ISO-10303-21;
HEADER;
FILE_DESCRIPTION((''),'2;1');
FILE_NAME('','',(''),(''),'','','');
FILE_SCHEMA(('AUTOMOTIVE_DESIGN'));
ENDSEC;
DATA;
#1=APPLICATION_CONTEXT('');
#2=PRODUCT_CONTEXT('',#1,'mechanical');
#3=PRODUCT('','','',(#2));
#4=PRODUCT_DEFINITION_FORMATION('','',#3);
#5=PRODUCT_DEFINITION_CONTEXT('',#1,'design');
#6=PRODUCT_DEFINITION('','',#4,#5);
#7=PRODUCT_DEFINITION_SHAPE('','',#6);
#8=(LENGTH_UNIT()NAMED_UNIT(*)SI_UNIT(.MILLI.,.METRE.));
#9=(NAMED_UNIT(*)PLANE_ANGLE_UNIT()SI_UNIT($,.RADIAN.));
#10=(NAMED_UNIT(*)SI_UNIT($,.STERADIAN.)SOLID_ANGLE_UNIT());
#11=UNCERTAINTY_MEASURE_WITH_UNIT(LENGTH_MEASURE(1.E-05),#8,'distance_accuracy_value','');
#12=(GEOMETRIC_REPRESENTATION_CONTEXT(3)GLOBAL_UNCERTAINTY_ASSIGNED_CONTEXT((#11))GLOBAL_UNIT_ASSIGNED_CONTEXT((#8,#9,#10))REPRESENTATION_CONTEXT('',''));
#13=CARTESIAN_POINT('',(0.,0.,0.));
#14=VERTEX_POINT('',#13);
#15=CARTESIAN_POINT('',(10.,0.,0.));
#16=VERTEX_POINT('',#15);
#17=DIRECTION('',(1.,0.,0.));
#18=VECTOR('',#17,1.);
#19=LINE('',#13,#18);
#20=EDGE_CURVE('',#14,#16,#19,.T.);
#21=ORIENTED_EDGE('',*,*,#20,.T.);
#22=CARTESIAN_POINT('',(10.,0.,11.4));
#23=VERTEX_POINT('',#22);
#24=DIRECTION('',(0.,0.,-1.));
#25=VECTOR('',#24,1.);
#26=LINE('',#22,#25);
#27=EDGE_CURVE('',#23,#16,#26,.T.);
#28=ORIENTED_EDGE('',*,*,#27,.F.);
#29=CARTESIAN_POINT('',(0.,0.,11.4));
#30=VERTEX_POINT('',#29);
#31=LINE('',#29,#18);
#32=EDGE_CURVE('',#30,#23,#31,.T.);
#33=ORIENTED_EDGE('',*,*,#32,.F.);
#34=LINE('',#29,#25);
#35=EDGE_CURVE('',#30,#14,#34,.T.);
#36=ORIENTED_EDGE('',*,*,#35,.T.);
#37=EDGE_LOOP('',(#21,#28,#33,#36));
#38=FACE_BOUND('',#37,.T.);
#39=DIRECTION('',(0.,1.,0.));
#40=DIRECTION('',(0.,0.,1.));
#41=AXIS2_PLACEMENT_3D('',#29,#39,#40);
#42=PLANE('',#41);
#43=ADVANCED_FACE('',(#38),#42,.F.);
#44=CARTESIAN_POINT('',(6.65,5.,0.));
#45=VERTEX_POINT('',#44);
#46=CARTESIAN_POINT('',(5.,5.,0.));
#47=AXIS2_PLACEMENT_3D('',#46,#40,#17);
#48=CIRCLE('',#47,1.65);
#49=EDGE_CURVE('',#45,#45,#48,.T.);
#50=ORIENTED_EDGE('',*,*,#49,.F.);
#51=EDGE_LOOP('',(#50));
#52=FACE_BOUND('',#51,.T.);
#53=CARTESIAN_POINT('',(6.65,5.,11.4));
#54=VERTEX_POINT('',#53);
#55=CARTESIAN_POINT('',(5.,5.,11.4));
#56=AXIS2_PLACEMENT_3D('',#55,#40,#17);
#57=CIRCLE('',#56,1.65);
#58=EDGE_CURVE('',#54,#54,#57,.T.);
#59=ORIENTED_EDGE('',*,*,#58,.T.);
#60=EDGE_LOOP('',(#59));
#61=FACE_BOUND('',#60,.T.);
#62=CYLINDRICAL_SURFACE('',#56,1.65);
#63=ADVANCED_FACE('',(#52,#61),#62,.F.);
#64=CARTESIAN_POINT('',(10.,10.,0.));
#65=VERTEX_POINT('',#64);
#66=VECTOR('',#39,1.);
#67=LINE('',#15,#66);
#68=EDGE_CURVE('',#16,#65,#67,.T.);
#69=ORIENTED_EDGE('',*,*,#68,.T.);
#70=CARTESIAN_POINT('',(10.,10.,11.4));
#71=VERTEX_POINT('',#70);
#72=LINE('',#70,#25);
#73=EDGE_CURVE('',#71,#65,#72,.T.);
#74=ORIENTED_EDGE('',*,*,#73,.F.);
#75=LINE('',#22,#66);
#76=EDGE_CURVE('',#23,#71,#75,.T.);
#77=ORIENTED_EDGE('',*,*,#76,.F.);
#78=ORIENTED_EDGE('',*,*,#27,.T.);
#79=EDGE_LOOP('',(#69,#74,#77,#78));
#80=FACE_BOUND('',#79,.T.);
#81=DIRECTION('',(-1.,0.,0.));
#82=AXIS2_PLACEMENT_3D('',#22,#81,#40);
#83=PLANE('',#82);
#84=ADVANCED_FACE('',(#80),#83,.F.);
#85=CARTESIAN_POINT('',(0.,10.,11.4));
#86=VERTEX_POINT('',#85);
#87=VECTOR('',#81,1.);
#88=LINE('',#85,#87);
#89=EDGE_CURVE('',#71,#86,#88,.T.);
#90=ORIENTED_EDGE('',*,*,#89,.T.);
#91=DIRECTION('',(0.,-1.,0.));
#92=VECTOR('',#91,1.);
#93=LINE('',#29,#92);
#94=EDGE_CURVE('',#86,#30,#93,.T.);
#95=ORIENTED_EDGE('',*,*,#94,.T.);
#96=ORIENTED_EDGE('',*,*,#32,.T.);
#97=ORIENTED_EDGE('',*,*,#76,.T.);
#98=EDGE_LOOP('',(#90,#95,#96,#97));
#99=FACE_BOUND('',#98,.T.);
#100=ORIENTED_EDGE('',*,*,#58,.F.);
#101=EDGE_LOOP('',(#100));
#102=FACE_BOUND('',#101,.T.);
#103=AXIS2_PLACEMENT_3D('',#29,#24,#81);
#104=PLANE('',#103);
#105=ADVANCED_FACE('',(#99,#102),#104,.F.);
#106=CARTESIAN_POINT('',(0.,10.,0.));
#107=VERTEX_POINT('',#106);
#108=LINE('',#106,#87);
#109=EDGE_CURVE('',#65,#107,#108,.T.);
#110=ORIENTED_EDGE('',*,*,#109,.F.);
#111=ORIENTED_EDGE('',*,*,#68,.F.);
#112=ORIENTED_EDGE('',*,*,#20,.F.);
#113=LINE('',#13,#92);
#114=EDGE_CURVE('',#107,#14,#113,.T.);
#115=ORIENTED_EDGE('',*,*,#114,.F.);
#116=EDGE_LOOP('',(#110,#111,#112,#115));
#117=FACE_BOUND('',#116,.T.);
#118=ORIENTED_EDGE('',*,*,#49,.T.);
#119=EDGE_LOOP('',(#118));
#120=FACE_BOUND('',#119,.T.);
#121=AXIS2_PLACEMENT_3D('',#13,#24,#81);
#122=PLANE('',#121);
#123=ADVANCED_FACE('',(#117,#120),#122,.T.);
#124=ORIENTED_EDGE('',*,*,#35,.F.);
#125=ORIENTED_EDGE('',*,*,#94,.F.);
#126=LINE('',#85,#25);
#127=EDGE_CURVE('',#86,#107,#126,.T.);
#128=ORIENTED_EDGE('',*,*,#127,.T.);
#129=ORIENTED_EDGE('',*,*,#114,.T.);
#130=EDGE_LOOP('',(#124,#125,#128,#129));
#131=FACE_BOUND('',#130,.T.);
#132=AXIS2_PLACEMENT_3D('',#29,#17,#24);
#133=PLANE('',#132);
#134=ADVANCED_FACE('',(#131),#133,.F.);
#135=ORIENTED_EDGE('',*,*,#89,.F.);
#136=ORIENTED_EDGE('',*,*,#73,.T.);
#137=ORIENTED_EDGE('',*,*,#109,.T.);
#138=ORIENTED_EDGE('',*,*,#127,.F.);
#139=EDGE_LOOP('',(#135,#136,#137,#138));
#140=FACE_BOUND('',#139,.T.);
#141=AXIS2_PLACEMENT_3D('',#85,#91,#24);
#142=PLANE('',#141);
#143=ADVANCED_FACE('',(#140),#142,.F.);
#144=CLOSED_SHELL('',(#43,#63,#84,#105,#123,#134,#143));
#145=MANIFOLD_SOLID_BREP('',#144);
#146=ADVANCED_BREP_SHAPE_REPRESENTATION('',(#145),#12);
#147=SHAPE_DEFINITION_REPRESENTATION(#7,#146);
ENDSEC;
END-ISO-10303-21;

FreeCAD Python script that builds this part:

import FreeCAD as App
import Part
import Sketcher

V = App.Vector


def add_polygon(sketch, points):
    """Adds a closed chain of lines whose ends are joined by coincident constraints."""
    first, n = sketch.GeometryCount, len(points)
    for a, b in zip(points, points[1:] + points[:1]):
        sketch.addGeometry(Part.LineSegment(App.Vector(*a, 0), App.Vector(*b, 0)), False)
    for i in range(n):
        sketch.addConstraint(Sketcher.Constraint("Coincident", first + i, 2, first + (i + 1) % n, 1))

doc = App.newDocument("Part")
body = doc.addObject("PartDesign::Body", "Body")

sketch1 = body.newObject("Sketcher::SketchObject", "Sketch")
sketch1.AttachmentSupport = (doc.getObject("XY_Plane"), [""])
sketch1.MapMode = "FlatFace"
add_polygon(sketch1, [(0, 10), (0, 0), (10, 0), (10, 10)])
sketch1.addConstraint([
    Sketcher.Constraint("Vertical", 0),
    Sketcher.Constraint("Horizontal", 1),
    Sketcher.Constraint("Vertical", 2),
    Sketcher.Constraint("Horizontal", 3),
    Sketcher.Constraint("Coincident", 0, 2, -1, 1),
    Sketcher.Constraint("Equal", 3, 0),
    Sketcher.Constraint("DistanceX", 1, 1, 1, 2, 10.0),
])
pad1 = body.newObject("PartDesign::Pad", "Pad")
pad1.Profile = sketch1
pad1.Length = 11.4

sketch2 = body.newObject("Sketcher::SketchObject", "Sketch001")
sketch2.AttachmentSupport = (doc.getObject("XY_Plane"), [""])
sketch2.MapMode = "FlatFace"
sketch2.AttachmentOffset = App.Placement(V(0, 0, 11.4), App.Rotation())
sketch2.addGeometry(Part.Circle(V(5, 5, 0), V(0, 0, 1), 1.6), False)
sketch2.addConstraint([
    Sketcher.Constraint("Diameter", 0, 3.3),
    Sketcher.Constraint("DistanceX", -1, 1, 0, 3, 5.0),
    Sketcher.Constraint("DistanceY", -1, 1, 0, 3, 5.0),
])
doc.recompute()
hole = body.newObject("PartDesign::Hole", "Hole")
hole.Profile = sketch2
hole.ThreadType = "None"
hole.Diameter = 3.3
hole.DepthType = "ThroughAll"

doc.recompute()
